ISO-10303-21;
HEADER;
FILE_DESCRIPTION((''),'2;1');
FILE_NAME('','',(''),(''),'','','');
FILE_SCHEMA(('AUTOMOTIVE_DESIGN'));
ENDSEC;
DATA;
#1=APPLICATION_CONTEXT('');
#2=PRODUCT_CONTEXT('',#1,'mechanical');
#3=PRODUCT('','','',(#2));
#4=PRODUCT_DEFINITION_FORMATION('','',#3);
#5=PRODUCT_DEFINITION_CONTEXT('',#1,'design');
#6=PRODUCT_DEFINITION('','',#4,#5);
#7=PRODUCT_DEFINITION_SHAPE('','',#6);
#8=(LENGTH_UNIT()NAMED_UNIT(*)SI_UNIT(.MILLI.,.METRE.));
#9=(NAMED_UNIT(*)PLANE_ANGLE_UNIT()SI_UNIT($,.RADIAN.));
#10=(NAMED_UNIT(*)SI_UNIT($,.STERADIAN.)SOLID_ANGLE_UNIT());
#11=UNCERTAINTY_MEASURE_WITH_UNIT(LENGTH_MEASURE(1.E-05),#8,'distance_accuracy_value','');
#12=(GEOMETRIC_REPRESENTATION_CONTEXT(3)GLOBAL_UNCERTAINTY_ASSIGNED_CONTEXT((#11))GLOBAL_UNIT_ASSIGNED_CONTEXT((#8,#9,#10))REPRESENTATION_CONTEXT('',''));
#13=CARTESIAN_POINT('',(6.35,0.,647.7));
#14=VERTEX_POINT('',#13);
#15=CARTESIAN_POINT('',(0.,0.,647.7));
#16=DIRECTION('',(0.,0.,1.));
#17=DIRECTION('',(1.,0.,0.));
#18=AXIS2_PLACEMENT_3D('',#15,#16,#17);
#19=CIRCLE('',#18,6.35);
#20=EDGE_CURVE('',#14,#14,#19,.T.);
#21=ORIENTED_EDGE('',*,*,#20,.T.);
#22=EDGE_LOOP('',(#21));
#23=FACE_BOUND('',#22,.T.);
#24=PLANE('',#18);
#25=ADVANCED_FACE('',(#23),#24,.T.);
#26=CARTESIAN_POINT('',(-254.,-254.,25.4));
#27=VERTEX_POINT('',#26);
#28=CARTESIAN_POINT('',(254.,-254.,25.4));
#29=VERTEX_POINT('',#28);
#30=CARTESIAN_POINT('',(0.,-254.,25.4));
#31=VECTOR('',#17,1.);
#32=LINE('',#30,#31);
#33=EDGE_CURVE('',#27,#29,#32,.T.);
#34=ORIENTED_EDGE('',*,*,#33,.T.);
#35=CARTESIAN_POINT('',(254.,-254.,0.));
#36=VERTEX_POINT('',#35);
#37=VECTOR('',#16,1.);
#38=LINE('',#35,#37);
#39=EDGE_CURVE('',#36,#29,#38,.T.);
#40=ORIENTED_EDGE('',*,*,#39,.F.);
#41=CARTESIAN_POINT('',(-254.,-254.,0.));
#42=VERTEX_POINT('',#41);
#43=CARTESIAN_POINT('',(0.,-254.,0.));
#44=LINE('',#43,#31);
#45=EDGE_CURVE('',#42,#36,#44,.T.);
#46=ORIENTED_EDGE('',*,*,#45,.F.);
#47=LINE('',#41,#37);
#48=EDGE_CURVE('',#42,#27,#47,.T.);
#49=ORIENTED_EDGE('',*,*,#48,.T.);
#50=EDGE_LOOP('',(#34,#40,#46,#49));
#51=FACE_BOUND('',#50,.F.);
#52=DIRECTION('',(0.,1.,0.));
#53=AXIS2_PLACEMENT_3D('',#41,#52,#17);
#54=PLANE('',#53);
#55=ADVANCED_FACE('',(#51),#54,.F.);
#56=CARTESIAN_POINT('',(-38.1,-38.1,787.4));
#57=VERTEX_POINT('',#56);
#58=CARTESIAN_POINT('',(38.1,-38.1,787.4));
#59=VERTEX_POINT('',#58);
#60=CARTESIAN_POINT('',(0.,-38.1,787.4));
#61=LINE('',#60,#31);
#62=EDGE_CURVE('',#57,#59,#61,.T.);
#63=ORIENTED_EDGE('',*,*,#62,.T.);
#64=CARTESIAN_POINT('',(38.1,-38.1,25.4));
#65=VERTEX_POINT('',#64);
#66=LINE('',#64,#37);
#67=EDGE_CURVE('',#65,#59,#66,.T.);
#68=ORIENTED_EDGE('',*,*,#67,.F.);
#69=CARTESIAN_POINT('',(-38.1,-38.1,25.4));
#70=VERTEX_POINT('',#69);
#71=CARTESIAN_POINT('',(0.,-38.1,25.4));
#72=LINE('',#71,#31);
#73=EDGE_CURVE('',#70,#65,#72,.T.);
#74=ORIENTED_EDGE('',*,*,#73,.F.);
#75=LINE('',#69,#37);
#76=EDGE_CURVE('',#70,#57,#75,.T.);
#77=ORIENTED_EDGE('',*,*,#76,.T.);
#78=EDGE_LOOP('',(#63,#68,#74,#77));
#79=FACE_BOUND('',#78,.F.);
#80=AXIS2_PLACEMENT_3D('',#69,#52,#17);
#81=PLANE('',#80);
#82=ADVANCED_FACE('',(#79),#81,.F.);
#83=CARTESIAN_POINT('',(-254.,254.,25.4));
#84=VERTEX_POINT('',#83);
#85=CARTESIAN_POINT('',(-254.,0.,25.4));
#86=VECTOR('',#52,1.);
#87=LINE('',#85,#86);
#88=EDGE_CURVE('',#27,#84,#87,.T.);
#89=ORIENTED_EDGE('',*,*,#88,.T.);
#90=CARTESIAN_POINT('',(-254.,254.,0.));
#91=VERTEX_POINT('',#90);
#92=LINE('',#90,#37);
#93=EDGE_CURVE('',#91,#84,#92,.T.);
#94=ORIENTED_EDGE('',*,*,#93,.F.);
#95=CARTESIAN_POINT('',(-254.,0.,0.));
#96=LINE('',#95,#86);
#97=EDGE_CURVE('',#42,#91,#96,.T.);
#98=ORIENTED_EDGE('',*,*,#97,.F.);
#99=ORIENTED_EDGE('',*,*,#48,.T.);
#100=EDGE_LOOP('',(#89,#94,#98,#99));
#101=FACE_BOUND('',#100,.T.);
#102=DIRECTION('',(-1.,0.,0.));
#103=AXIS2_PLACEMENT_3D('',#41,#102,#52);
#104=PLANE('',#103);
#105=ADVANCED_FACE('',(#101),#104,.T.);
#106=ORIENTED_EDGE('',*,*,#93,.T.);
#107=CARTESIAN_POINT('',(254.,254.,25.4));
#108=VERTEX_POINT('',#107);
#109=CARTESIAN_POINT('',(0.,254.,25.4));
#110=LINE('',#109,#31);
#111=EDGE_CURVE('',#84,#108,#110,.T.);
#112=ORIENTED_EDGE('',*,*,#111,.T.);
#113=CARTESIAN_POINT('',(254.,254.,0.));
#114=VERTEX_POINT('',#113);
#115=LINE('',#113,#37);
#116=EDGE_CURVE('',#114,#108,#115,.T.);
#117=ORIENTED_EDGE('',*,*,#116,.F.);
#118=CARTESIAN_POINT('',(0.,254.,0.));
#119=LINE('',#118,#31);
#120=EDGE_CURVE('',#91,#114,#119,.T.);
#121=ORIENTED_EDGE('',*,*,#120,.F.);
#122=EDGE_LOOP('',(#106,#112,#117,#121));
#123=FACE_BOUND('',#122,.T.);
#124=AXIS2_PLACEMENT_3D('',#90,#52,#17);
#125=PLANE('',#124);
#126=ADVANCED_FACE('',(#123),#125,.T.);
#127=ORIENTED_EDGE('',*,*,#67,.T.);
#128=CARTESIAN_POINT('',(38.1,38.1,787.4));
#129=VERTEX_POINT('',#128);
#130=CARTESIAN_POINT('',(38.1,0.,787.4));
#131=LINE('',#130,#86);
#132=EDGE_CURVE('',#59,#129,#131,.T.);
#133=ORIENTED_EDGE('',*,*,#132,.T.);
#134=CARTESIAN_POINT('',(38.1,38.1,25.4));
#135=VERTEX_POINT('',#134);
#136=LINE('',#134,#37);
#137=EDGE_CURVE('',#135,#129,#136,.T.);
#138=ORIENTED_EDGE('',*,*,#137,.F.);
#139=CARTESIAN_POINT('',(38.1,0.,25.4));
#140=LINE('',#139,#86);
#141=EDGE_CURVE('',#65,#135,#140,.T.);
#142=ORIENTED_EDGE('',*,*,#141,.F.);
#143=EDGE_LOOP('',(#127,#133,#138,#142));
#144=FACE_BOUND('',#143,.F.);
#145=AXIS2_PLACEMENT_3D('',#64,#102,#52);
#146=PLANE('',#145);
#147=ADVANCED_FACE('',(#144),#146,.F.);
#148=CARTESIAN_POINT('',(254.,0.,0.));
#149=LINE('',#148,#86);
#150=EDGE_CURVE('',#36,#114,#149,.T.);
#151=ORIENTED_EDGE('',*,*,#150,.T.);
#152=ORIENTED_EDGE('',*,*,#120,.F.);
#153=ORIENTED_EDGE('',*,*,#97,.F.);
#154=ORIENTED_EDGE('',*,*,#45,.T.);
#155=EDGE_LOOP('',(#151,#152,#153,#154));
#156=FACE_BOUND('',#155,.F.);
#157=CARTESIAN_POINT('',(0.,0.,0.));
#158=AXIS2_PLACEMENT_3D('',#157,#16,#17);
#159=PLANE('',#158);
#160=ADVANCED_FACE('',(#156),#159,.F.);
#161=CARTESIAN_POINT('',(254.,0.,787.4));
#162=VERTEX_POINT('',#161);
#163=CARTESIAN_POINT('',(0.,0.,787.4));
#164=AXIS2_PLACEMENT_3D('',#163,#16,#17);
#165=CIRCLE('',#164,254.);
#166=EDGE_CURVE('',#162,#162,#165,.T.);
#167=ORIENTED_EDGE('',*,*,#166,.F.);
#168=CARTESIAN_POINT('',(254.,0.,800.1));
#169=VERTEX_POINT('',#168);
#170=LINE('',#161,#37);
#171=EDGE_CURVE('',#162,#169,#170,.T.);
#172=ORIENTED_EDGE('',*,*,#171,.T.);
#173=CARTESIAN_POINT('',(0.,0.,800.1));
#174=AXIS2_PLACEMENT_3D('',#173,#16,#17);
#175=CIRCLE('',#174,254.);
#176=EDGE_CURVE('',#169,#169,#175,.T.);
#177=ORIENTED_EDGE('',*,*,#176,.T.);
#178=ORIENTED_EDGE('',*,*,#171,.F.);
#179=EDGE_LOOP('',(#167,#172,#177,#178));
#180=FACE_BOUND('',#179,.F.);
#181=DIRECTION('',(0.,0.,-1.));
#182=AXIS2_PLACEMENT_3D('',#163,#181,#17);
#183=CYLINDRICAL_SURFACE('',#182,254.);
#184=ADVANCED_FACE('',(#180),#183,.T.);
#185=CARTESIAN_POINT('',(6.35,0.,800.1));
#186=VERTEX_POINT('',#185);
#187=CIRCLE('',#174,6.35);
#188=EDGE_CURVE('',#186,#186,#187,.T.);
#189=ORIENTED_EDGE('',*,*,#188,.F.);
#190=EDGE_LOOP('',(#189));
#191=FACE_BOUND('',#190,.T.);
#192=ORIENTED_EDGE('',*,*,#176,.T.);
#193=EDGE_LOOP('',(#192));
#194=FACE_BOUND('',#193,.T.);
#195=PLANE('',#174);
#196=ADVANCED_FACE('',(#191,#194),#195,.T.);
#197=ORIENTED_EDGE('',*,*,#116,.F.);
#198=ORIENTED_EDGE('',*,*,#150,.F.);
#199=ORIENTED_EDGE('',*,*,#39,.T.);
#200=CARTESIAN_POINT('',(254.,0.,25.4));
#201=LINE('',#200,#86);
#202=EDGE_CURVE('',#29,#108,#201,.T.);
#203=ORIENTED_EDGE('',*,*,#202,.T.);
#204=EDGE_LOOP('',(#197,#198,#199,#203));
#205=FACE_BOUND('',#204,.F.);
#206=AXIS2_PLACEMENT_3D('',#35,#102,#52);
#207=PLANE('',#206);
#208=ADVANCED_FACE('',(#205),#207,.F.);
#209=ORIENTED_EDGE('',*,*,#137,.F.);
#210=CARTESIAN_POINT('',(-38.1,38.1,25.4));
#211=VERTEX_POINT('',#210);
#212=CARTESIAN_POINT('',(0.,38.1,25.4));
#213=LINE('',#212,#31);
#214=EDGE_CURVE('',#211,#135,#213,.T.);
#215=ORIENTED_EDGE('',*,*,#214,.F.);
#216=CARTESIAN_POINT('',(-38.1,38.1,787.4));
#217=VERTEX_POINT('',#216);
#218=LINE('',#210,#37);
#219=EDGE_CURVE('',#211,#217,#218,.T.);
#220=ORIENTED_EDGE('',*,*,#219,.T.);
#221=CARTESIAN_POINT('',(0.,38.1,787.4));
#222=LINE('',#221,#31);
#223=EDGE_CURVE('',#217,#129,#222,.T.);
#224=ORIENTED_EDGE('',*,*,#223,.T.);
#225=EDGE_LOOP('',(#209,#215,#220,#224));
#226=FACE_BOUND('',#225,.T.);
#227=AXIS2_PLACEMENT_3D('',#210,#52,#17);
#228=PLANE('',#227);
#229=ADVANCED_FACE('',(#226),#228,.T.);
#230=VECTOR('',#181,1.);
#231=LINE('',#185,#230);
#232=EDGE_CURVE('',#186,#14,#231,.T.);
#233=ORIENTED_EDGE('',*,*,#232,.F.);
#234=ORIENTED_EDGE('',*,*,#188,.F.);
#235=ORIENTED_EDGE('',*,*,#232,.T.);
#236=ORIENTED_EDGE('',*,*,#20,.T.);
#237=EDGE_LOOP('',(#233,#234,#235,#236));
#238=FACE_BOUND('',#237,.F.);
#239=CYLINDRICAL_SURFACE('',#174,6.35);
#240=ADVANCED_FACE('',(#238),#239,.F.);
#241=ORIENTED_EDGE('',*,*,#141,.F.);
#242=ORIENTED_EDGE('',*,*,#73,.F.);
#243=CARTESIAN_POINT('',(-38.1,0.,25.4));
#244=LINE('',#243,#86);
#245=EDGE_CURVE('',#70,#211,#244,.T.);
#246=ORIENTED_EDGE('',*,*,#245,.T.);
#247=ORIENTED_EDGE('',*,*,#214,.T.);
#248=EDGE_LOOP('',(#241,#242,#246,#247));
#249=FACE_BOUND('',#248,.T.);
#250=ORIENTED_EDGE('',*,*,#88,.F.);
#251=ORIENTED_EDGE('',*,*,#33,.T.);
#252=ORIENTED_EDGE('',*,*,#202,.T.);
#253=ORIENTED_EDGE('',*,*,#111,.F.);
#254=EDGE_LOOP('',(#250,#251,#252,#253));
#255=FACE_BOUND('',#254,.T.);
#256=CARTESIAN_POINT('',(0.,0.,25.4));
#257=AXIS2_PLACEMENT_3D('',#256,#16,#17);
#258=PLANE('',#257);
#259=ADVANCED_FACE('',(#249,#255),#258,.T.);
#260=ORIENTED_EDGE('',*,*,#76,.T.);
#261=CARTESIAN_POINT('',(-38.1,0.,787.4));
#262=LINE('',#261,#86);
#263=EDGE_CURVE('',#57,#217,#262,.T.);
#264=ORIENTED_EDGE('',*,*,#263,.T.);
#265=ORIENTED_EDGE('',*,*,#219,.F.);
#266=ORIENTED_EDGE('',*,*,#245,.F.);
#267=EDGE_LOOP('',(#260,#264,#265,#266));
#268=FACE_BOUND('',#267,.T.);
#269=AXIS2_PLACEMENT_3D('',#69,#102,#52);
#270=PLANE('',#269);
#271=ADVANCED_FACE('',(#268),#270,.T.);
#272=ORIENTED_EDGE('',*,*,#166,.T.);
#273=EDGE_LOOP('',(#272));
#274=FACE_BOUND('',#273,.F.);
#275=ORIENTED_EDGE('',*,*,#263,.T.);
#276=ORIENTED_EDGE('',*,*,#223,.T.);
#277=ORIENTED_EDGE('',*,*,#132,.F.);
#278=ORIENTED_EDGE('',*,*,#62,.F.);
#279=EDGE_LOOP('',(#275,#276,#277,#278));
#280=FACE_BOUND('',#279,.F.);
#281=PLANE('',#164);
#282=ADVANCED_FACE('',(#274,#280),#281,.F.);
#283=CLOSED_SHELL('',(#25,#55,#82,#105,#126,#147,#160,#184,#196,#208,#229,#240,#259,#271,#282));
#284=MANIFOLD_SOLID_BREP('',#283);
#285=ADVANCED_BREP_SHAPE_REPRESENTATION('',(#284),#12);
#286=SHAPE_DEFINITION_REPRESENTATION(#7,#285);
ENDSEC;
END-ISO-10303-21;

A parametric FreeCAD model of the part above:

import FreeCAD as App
import Part
import Sketcher
from FreeCAD import Vector
Q = App.Units.Quantity


def add_polygon(sketch, points):
    """Adds a closed chain of lines whose ends are joined by coincident constraints."""
    first, n = sketch.GeometryCount, len(points)
    for a, b in zip(points, points[1:] + points[:1]):
        sketch.addGeometry(Part.LineSegment(App.Vector(*a, 0), App.Vector(*b, 0)), False)
    for i in range(n):
        sketch.addConstraint(Sketcher.Constraint("Coincident", first + i, 2, first + (i + 1) % n, 1))

doc = App.newDocument("Part")
body = doc.addObject("PartDesign::Body", "Body")

sketch1 = body.newObject("Sketcher::SketchObject", "Sketch")
sketch1.AttachmentSupport = (doc.getObject("XY_Plane"), [""])
sketch1.MapMode = "FlatFace"
add_polygon(sketch1, [(-254, 254), (-254, -254), (254, -254), (254, 254)])
sketch1.addConstraint([
    Sketcher.Constraint("Vertical", 0),
    Sketcher.Constraint("Horizontal", 1),
    Sketcher.Constraint("Vertical", 2),
    Sketcher.Constraint("Horizontal", 3),
    Sketcher.Constraint("Symmetric", 0, 2, 2, 2, -1, 1),
    Sketcher.Constraint("Equal", 3, 0),
    Sketcher.Constraint("DistanceX", 1, 1, 1, 2, Q("20 in")),
])
pad1 = body.newObject("PartDesign::Pad", "Pad")
pad1.Profile = sketch1
pad1.Length = Q("1 in")

sketch2 = body.newObject("Sketcher::SketchObject", "Sketch001")
sketch2.AttachmentSupport = (doc.getObject("XY_Plane"), [""])
sketch2.MapMode = "FlatFace"
sketch2.AttachmentOffset = App.Placement(Vector(0, 0, 1 * 25.4), App.Rotation())
add_polygon(sketch2, [(-38, 38), (-38, -38), (38, -38), (38, 38)])
sketch2.addConstraint([
    Sketcher.Constraint("Vertical", 0),
    Sketcher.Constraint("Horizontal", 1),
    Sketcher.Constraint("Vertical", 2),
    Sketcher.Constraint("Horizontal", 3),
    Sketcher.Constraint("Symmetric", 0, 2, 2, 2, -1, 1),
    Sketcher.Constraint("Equal", 3, 0),
    Sketcher.Constraint("DistanceX", 1, 1, 1, 2, Q("3 in")),
])
pad2 = body.newObject("PartDesign::Pad", "Pad001")
pad2.Profile = sketch2
pad2.Length = Q("30 in")

sketch3 = body.newObject("Sketcher::SketchObject", "Sketch002")
sketch3.AttachmentSupport = (doc.getObject("XY_Plane"), [""])
sketch3.MapMode = "FlatFace"
sketch3.AttachmentOffset = App.Placement(Vector(0, 0, 31 * 25.4), App.Rotation())
sketch3.addGeometry(Part.Circle(Vector(0, 0, 0), Vector(0, 0, 1), 254), False)
sketch3.addConstraint([
    Sketcher.Constraint("Coincident", 0, 3, -1, 1),
    Sketcher.Constraint("Diameter", 0, Q("20 in")),
])
pad3 = body.newObject("PartDesign::Pad", "Pad002")
pad3.Profile = sketch3
pad3.Length = Q("0.5 in")

sketch4 = body.newObject("Sketcher::SketchObject", "Sketch003")
sketch4.AttachmentSupport = (doc.getObject("XY_Plane"), [""])
sketch4.MapMode = "FlatFace"
sketch4.AttachmentOffset = App.Placement(Vector(0, 0, 31.5 * 25.4), App.Rotation())
sketch4.addGeometry(Part.Circle(Vector(0, 0, 0), Vector(0, 0, 1), 6), False)
sketch4.addConstraint([
    Sketcher.Constraint("Coincident", 0, 3, -1, 1),
    Sketcher.Constraint("Diameter", 0, Q("0.5 in")),
])
pocket1 = body.newObject("PartDesign::Pocket", "Pocket")
pocket1.Profile = sketch4
pocket1.Length = Q("6 in")

doc.recompute()
